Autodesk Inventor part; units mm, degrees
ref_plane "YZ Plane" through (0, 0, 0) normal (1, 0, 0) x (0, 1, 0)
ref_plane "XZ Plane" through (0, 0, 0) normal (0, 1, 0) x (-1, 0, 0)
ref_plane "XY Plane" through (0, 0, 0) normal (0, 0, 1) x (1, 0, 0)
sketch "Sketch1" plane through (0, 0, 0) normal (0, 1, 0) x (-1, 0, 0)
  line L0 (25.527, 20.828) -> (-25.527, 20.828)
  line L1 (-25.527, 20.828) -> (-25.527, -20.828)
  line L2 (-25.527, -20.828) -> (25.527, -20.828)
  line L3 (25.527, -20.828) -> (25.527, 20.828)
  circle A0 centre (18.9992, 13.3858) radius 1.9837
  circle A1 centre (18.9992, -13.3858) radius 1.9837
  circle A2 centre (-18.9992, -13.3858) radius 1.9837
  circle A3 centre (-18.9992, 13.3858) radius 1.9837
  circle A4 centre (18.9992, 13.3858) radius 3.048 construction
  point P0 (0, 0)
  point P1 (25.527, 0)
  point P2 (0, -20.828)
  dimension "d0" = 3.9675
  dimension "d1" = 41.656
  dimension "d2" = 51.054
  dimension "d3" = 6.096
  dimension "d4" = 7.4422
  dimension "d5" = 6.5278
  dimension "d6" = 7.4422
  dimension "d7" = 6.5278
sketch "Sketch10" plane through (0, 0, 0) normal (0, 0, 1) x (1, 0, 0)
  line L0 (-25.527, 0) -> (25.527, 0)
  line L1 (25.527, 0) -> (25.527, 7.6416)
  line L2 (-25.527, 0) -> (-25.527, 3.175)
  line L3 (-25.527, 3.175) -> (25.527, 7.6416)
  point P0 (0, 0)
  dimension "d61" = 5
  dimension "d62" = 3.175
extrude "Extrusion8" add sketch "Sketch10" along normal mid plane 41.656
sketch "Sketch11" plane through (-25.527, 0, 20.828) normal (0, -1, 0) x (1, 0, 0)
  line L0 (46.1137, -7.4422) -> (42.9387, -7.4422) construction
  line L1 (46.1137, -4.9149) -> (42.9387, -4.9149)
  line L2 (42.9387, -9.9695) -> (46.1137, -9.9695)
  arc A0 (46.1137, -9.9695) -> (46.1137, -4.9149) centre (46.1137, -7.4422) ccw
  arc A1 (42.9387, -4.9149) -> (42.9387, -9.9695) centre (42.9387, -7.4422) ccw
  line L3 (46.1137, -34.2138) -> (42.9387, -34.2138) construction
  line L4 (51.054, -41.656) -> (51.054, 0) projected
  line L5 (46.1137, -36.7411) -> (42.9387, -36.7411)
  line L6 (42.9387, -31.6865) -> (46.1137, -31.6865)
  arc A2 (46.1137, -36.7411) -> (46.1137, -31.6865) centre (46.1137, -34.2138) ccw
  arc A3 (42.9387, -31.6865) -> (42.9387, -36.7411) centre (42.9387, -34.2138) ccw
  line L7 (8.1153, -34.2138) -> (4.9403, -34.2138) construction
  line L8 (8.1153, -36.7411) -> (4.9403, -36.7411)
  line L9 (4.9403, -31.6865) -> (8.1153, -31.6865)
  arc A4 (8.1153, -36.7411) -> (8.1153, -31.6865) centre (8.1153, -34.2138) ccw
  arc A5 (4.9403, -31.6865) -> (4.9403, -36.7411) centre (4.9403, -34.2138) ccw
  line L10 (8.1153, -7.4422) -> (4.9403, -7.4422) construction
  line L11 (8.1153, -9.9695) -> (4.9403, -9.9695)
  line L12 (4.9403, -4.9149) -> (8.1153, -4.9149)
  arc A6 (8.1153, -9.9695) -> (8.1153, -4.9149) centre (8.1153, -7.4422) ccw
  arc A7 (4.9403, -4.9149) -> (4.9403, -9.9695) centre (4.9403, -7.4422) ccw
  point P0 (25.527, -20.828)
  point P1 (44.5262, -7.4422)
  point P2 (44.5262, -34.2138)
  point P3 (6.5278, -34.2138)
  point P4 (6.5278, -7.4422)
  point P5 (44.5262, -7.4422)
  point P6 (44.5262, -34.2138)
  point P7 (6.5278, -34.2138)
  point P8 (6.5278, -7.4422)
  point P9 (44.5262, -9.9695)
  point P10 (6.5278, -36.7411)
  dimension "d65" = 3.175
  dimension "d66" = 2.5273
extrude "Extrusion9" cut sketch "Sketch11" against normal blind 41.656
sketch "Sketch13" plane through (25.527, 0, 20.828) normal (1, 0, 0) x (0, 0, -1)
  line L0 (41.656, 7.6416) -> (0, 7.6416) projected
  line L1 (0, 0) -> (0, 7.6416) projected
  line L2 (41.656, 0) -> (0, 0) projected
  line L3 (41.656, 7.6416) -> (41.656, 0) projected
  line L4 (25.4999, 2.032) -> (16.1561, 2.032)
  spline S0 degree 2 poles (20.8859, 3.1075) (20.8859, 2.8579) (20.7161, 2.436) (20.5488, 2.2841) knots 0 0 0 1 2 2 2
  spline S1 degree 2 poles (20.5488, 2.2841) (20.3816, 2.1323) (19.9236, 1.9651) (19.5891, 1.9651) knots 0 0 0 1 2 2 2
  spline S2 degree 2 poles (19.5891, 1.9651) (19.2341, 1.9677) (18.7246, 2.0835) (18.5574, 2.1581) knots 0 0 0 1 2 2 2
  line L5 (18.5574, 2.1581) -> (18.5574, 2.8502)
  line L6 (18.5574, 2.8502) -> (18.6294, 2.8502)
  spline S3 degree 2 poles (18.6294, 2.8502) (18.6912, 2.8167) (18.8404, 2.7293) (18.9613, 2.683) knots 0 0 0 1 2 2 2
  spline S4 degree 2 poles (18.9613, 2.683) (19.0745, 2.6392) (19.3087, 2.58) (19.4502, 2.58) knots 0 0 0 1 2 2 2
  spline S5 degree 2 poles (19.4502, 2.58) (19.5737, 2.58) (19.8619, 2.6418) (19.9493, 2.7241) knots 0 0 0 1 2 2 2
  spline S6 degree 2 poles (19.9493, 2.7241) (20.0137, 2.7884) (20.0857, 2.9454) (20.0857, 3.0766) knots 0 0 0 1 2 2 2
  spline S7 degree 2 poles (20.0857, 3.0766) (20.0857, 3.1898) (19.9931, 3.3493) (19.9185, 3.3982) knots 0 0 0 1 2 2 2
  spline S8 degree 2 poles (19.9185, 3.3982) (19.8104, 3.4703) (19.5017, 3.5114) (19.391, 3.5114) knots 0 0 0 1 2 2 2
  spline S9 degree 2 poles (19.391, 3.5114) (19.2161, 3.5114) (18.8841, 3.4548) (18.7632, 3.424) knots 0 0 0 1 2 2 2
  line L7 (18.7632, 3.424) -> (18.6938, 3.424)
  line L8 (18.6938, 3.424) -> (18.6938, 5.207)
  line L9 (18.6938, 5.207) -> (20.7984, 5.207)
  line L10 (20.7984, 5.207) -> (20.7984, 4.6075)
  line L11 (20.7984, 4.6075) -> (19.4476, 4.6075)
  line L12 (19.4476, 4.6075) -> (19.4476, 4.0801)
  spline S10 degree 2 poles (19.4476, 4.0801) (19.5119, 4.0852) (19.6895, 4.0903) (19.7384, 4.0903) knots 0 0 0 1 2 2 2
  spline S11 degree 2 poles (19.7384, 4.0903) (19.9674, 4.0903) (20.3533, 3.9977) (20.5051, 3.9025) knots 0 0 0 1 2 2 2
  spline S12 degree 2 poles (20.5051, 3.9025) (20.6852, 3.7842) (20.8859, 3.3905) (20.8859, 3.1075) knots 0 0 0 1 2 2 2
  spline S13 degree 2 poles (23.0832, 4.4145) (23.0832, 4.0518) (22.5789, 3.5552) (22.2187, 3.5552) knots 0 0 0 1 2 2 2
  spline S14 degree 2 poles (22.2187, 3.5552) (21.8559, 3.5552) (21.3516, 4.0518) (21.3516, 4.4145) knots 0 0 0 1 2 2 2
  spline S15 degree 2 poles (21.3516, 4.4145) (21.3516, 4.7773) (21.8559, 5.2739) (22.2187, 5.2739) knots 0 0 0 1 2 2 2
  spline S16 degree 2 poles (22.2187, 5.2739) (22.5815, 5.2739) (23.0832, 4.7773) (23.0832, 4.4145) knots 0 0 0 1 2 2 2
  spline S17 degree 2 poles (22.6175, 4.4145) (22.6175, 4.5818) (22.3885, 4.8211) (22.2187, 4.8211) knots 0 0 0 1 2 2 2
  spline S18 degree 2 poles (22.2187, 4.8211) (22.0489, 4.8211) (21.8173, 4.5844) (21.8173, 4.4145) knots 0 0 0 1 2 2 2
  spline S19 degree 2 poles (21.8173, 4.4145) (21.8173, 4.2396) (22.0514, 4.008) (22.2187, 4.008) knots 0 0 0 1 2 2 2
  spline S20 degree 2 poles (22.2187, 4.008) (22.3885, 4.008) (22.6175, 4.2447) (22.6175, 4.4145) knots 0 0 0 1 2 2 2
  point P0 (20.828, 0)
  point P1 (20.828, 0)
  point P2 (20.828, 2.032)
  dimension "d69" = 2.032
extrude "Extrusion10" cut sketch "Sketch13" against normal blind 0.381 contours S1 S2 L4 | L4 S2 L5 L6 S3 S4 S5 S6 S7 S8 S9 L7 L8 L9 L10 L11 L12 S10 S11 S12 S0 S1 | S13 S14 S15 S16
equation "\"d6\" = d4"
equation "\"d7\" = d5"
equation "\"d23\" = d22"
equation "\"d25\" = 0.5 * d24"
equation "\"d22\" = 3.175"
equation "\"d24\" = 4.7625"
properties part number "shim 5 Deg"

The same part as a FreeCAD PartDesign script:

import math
import FreeCAD as App
import Part
import Sketcher
from FreeCAD import Vector
Q = App.Units.Quantity

doc = App.newDocument("Part")
params = doc.addObject("Spreadsheet::Sheet", "Params")
for row, (alias, value) in enumerate([
    ("sketch1_height", "0.125 in"),
    ("sketch1_width", "2.01 in"),
    ("pad1_length", "1.64 in"),
    ("sketch2_width", "0.125 in"),
    ("pocket1_length", "1.64 in"),
    ("pocket2_length", "0.015 in"),
], start=1):
    params.set(f"A{row}", alias)
    params.set(f"B{row}", "=" + value)
    params.setAlias(f"B{row}", alias)

body = doc.addObject("PartDesign::Body", "Body")

# Sketch on XY plane
sketch1 = body.newObject("Sketcher::SketchObject", "Sketch")
sketch1.AttachmentSupport = (doc.getObject("XY_Plane"), [""])
sketch1.MapMode = "FlatFace"
sketch1.addGeometry([
    Part.LineSegment(Vector(-25.527, 3.175, 0), Vector(-25.527, 0, 0)),
    Part.LineSegment(Vector(-25.527, 0, 0), Vector(25.527, 0, 0)),
    Part.LineSegment(Vector(25.527, 0, 0), Vector(25.527, 7.6416, 0)),
    Part.LineSegment(Vector(25.527, 7.6416, 0), Vector(-25.527, 3.175, 0)),
], False)
sketch1.addConstraint([
    Sketcher.Constraint("Coincident", 0, 2, 1, 1),
    Sketcher.Constraint("Coincident", 1, 2, 2, 1),
    Sketcher.Constraint("Coincident", 2, 2, 3, 1),
    Sketcher.Constraint("Coincident", 3, 2, 0, 1),
    Sketcher.Constraint("Vertical", 0),
    Sketcher.Constraint("Horizontal", 1),
    Sketcher.Constraint("Vertical", 2),
    Sketcher.Constraint("Symmetric", 0, 2, 1, 2, -1, 1),
    Sketcher.Constraint("DistanceY", 0, 2, 0, 1, Q("0.125 in")),
    Sketcher.Constraint("Angle", 3, Q("-175 deg")),
    Sketcher.Constraint("DistanceX", 1, 1, 1, 2, Q("2.01 in")),
])
sketch1.setExpression("Constraints[8]", "Params.sketch1_height")
sketch1.setExpression("Constraints[10]", "Params.sketch1_width")
pad1 = body.newObject("PartDesign::Pad", "Pad")
pad1.Profile = sketch1
pad1.setExpression("Length", "Params.pad1_length")
pad1.Midplane = True

# Sketch on XZ plane
sketch2 = body.newObject("Sketcher::SketchObject", "Sketch001")
sketch2.AttachmentSupport = (doc.getObject("XZ_Plane"), [""])
sketch2.MapMode = "FlatFace"
sketch2.addGeometry([
    Part.ArcOfCircle(Part.Circle(Vector(20.5867, 13.3858, 0), Vector(0, 0, 1), 2.5273), math.radians(-90), math.radians(90)),  # 0
    Part.LineSegment(Vector(20.5867, 15.9131, 0), Vector(17.4117, 15.9131, 0)),  # 1
    Part.ArcOfCircle(Part.Circle(Vector(17.4117, 13.3858, 0), Vector(0, 0, 1), 2.5273), math.radians(90), math.radians(270)),  # 2
    Part.LineSegment(Vector(17.4117, 10.8585, 0), Vector(20.5867, 10.8585, 0)),  # 3
    Part.LineSegment(Vector(17.4117, -15.9131, 0), Vector(20.5867, -15.9131, 0)),  # 4
    Part.ArcOfCircle(Part.Circle(Vector(20.5867, -13.3858, 0), Vector(0, 0, 1), 2.5273), math.radians(-90), math.radians(90)),  # 5
    Part.LineSegment(Vector(20.5867, -10.8585, 0), Vector(17.4117, -10.8585, 0)),  # 6
    Part.ArcOfCircle(Part.Circle(Vector(17.4117, -13.3858, 0), Vector(0, 0, 1), 2.5273), math.radians(90), math.radians(270)),  # 7
    Part.LineSegment(Vector(-20.5867, -15.9131, 0), Vector(-17.4117, -15.9131, 0)),  # 8
    Part.ArcOfCircle(Part.Circle(Vector(-17.4117, -13.3858, 0), Vector(0, 0, 1), 2.5273), math.radians(-90), math.radians(90)),  # 9
    Part.LineSegment(Vector(-17.4117, -10.8585, 0), Vector(-20.5867, -10.8585, 0)),  # 10
    Part.ArcOfCircle(Part.Circle(Vector(-20.5867, -13.3858, 0), Vector(0, 0, 1), 2.5273), math.radians(90), math.radians(270)),  # 11
    Part.LineSegment(Vector(-20.5867, 10.8585, 0), Vector(-17.4117, 10.8585, 0)),  # 12
    Part.ArcOfCircle(Part.Circle(Vector(-17.4117, 13.3858, 0), Vector(0, 0, 1), 2.5273), math.radians(-90), math.radians(90)),  # 13
    Part.LineSegment(Vector(-17.4117, 15.9131, 0), Vector(-20.5867, 15.9131, 0)),  # 14
    Part.ArcOfCircle(Part.Circle(Vector(-20.5867, 13.3858, 0), Vector(0, 0, 1), 2.5273), math.radians(90), math.radians(270)),  # 15
], False)
sketch2.addConstraint([
    Sketcher.Constraint("Tangent", 0, 2, 1, 1),
    Sketcher.Constraint("Tangent", 1, 2, 2, 1),
    Sketcher.Constraint("Tangent", 2, 2, 3, 1),
    Sketcher.Constraint("Tangent", 3, 2, 0, 1),
    Sketcher.Constraint("Tangent", 4, 2, 5, 1),
    Sketcher.Constraint("Tangent", 5, 2, 6, 1),
    Sketcher.Constraint("Tangent", 6, 2, 7, 1),
    Sketcher.Constraint("Tangent", 7, 2, 4, 1),
    Sketcher.Constraint("Tangent", 8, 2, 9, 1),
    Sketcher.Constraint("Tangent", 9, 2, 10, 1),
    Sketcher.Constraint("Tangent", 10, 2, 11, 1),
    Sketcher.Constraint("Tangent", 11, 2, 8, 1),
    Sketcher.Constraint("Tangent", 12, 2, 13, 1),
    Sketcher.Constraint("Tangent", 13, 2, 14, 1),
    Sketcher.Constraint("Tangent", 14, 2, 15, 1),
    Sketcher.Constraint("Tangent", 15, 2, 12, 1),
    Sketcher.Constraint("Horizontal", 1),
    Sketcher.Constraint("Horizontal", 3),
    Sketcher.Constraint("Horizontal", 4),
    Sketcher.Constraint("Horizontal", 6),
    Sketcher.Constraint("Horizontal", 8),
    Sketcher.Constraint("Horizontal", 10),
    Sketcher.Constraint("Horizontal", 12),
    Sketcher.Constraint("Horizontal", 14),
    Sketcher.Constraint("Equal", 2, 5),
    Sketcher.Constraint("Equal", 7, 9),
    Sketcher.Constraint("Equal", 11, 13),
    Sketcher.Constraint("Symmetric", 2, 3, 9, 3, -1, 1),
    Sketcher.Constraint("Symmetric", 7, 3, 13, 3, -1, 1),
    Sketcher.Constraint("Symmetric", 7, 3, 9, 3, -2),
    Sketcher.Constraint("Vertical", 0, 3, 5, 3),
    Sketcher.Constraint("Vertical", 11, 3, 15, 3),
    Sketcher.Constraint("Equal", 6, 8),
    Sketcher.Constraint("Radius", 0, Q("0.0995 in")),
    Sketcher.Constraint("DistanceX", 1, 2, 1, 1, Q("0.125 in")),
    Sketcher.Constraint("DistanceY", -1, 1, 0, 3, Q("0.527 in")),
    Sketcher.Constraint("DistanceX", 9, 3, 7, 3, Q("1.371 in")),
])
sketch2.setExpression("Constraints[34]", "Params.sketch2_width")
pocket1 = body.newObject("PartDesign::Pocket", "Pocket")
pocket1.Profile = sketch2
pocket1.setExpression("Length", "Params.pocket1_length")

# Sketch on YZ plane
sketch3 = body.newObject("Sketcher::SketchObject", "Sketch002")
sketch3.AttachmentSupport = (doc.getObject("YZ_Plane"), [""])
sketch3.MapMode = "FlatFace"
sketch3.AttachmentOffset = App.Placement(Vector(0, 0, 1.005 * 25.4), App.Rotation())
sketch3.addGeometry([
    Part.BSplineCurve([Vector(2.032, 0.724864, 0), Vector(1.9651, 0.939669, 0), Vector(1.9651, 1.2389, 0)], [3, 3], [1.105439083, 2], False, 2, [1, 1, 1], False),  # 0
    Part.BSplineCurve([Vector(2.2841, 0.2792, 0), Vector(2.1323, 0.4464, 0), Vector(2.039885, 0.699546, 0), Vector(2.032, 0.724864, 0)], [3, 1, 3], [0, 1, 1.105439083], False, 2, [1, 1, 1, 1], False),  # 1
    Part.BSplineCurve([Vector(3.1075, -0.0579, 0), Vector(2.8579, -0.0579, 0), Vector(2.436, 0.1119, 0), Vector(2.2841, 0.2792, 0)], [3, 1, 3], [0, 1, 2], False, 2, [1, 1, 1, 1], False),  # 2
    Part.BSplineCurve([Vector(3.9025, 0.3229, 0), Vector(3.7842, 0.1428, 0), Vector(3.3905, -0.0579, 0), Vector(3.1075, -0.0579, 0)], [3, 1, 3], [0, 1, 2], False, 2, [1, 1, 1, 1], False),  # 3
    Part.BSplineCurve([Vector(4.0903, 1.0896, 0), Vector(4.0903, 0.8606, 0), Vector(3.9977, 0.4747, 0), Vector(3.9025, 0.3229, 0)], [3, 1, 3], [0, 1, 2], False, 2, [1, 1, 1, 1], False),  # 4
    Part.BSplineCurve([Vector(4.0801, 1.3804, 0), Vector(4.0852, 1.3161, 0), Vector(4.0903, 1.1385, 0), Vector(4.0903, 1.0896, 0)], [3, 1, 3], [0, 1, 2], False, 2, [1, 1, 1, 1], False),  # 5
    Part.LineSegment(Vector(4.0801, 1.3804, 0), Vector(4.6075, 1.3804, 0)),  # 6
    Part.LineSegment(Vector(4.6075, 1.3804, 0), Vector(4.6075, 0.0296, 0)),  # 7
    Part.LineSegment(Vector(4.6075, 0.0296, 0), Vector(5.207, 0.0296, 0)),  # 8
    Part.LineSegment(Vector(5.207, 0.0296, 0), Vector(5.207, 2.1342, 0)),  # 9
    Part.LineSegment(Vector(5.207, 2.1342, 0), Vector(3.424, 2.1342, 0)),  # 10
    Part.LineSegment(Vector(3.424, 2.1342, 0), Vector(3.424, 2.0648, 0)),  # 11
    Part.BSplineCurve([Vector(3.5114, 1.437, 0), Vector(3.5114, 1.6119, 0), Vector(3.4548, 1.9439, 0), Vector(3.424, 2.0648, 0)], [3, 1, 3], [0, 1, 2], False, 2, [1, 1, 1, 1], False),  # 12
    Part.BSplineCurve([Vector(3.3982, 0.9095, 0), Vector(3.4703, 1.0176, 0), Vector(3.5114, 1.3263, 0), Vector(3.5114, 1.437, 0)], [3, 1, 3], [0, 1, 2], False, 2, [1, 1, 1, 1], False),  # 13
    Part.BSplineCurve([Vector(3.0766, 0.7423, 0), Vector(3.1898, 0.7423, 0), Vector(3.3493, 0.8349, 0), Vector(3.3982, 0.9095, 0)], [3, 1, 3], [0, 1, 2], False, 2, [1, 1, 1, 1], False),  # 14
    Part.BSplineCurve([Vector(2.7241, 0.8787, 0), Vector(2.7884, 0.8143, 0), Vector(2.9454, 0.7423, 0), Vector(3.0766, 0.7423, 0)], [3, 1, 3], [0, 1, 2], False, 2, [1, 1, 1, 1], False),  # 15
    Part.BSplineCurve([Vector(2.58, 1.3778, 0), Vector(2.58, 1.2543, 0), Vector(2.6418, 0.9661, 0), Vector(2.7241, 0.8787, 0)], [3, 1, 3], [0, 1, 2], False, 2, [1, 1, 1, 1], False),  # 16
    Part.BSplineCurve([Vector(2.683, 1.8667, 0), Vector(2.6392, 1.7535, 0), Vector(2.58, 1.5193, 0), Vector(2.58, 1.3778, 0)], [3, 1, 3], [0, 1, 2], False, 2, [1, 1, 1, 1], False),  # 17
    Part.BSplineCurve([Vector(2.8502, 2.1986, 0), Vector(2.8167, 2.1368, 0), Vector(2.7293, 1.9876, 0), Vector(2.683, 1.8667, 0)], [3, 1, 3], [0, 1, 2], False, 2, [1, 1, 1, 1], False),  # 18
    Part.LineSegment(Vector(2.8502, 2.1986, 0), Vector(2.8502, 2.2706, 0)),  # 19
    Part.LineSegment(Vector(2.8502, 2.2706, 0), Vector(2.1581, 2.2706, 0)),  # 20
    Part.BSplineCurve([Vector(2.032, 1.876325, 0), Vector(2.087591, 2.112568, 0), Vector(2.1581, 2.2706, 0)], [3, 3], [1.054834083, 2], False, 2, [1, 1, 1], False),  # 21
    Part.BSplineCurve([Vector(1.9651, 1.2389, 0), Vector(1.9677, 1.5939, 0), Vector(2.028775, 1.862619, 0), Vector(2.032, 1.876325, 0)], [3, 1, 3], [0, 1, 1.054834083], False, 2, [1, 1, 1, 1], False),  # 22
    Part.BSplineCurve([Vector(4.4145, -2.2552, 0), Vector(4.0518, -2.2552, 0), Vector(3.5552, -1.7509, 0), Vector(3.5552, -1.3907, 0)], [3, 1, 3], [0, 1, 2], False, 2, [1, 1, 1, 1], False),  # 23
    Part.BSplineCurve([Vector(5.2739, -1.3907, 0), Vector(5.2739, -1.7535, 0), Vector(4.7773, -2.2552, 0), Vector(4.4145, -2.2552, 0)], [3, 1, 3], [0, 1, 2], False, 2, [1, 1, 1, 1], False),  # 24
    Part.BSplineCurve([Vector(4.4145, -0.5236, 0), Vector(4.7773, -0.5236, 0), Vector(5.2739, -1.0279, 0), Vector(5.2739, -1.3907, 0)], [3, 1, 3], [0, 1, 2], False, 2, [1, 1, 1, 1], False),  # 25
    Part.BSplineCurve([Vector(3.5552, -1.3907, 0), Vector(3.5552, -1.0279, 0), Vector(4.0518, -0.5236, 0), Vector(4.4145, -0.5236, 0)], [3, 1, 3], [0, 1, 2], False, 2, [1, 1, 1, 1], False),  # 26
    Part.BSplineCurve([Vector(4.4145, -1.7895, 0), Vector(4.5818, -1.7895, 0), Vector(4.8211, -1.5605, 0), Vector(4.8211, -1.3907, 0)], [3, 1, 3], [0, 1, 2], False, 2, [1, 1, 1, 1], False),  # 27
    Part.BSplineCurve([Vector(4.008, -1.3907, 0), Vector(4.008, -1.5605, 0), Vector(4.2447, -1.7895, 0), Vector(4.4145, -1.7895, 0)], [3, 1, 3], [0, 1, 2], False, 2, [1, 1, 1, 1], False),  # 28
    Part.BSplineCurve([Vector(4.4145, -0.9893, 0), Vector(4.2396, -0.9893, 0), Vector(4.008, -1.2234, 0), Vector(4.008, -1.3907, 0)], [3, 1, 3], [0, 1, 2], False, 2, [1, 1, 1, 1], False),  # 29
    Part.BSplineCurve([Vector(4.8211, -1.3907, 0), Vector(4.8211, -1.2209, 0), Vector(4.5844, -0.9893, 0), Vector(4.4145, -0.9893, 0)], [3, 1, 3], [0, 1, 2], False, 2, [1, 1, 1, 1], False),  # 30
], False)
sketch3.addConstraint([
    Sketcher.Constraint("Block", 0),
    Sketcher.Constraint("Block", 1),
    Sketcher.Constraint("Block", 2),
    Sketcher.Constraint("Block", 3),
    Sketcher.Constraint("Block", 4),
    Sketcher.Constraint("Block", 5),
    Sketcher.Constraint("Block", 12),
    Sketcher.Constraint("Block", 13),
    Sketcher.Constraint("Block", 14),
    Sketcher.Constraint("Block", 15),
    Sketcher.Constraint("Block", 16),
    Sketcher.Constraint("Block", 17),
    Sketcher.Constraint("Block", 18),
    Sketcher.Constraint("Block", 21),
    Sketcher.Constraint("Block", 22),
    Sketcher.Constraint("Block", 23),
    Sketcher.Constraint("Block", 24),
    Sketcher.Constraint("Block", 25),
    Sketcher.Constraint("Block", 26),
    Sketcher.Constraint("Block", 27),
    Sketcher.Constraint("Block", 28),
    Sketcher.Constraint("Block", 29),
    Sketcher.Constraint("Block", 30),
    Sketcher.Constraint("Coincident", 5, 1, 6, 1),
    Sketcher.Constraint("Coincident", 6, 2, 7, 1),
    Sketcher.Constraint("Coincident", 7, 2, 8, 1),
    Sketcher.Constraint("Coincident", 8, 2, 9, 1),
    Sketcher.Constraint("Coincident", 9, 2, 10, 1),
    Sketcher.Constraint("Coincident", 10, 2, 11, 1),
    Sketcher.Constraint("Coincident", 11, 2, 12, 2),
    Sketcher.Constraint("Coincident", 18, 1, 19, 1),
    Sketcher.Constraint("Coincident", 19, 2, 20, 1),
    Sketcher.Constraint("Coincident", 20, 2, 21, 2),
    Sketcher.Constraint("Horizontal", 6),
    Sketcher.Constraint("Vertical", 7),
    Sketcher.Constraint("Horizontal", 8),
    Sketcher.Constraint("Vertical", 9),
    Sketcher.Constraint("Horizontal", 10),
    Sketcher.Constraint("Vertical", 11),
    Sketcher.Constraint("Vertical", 19),
    Sketcher.Constraint("Horizontal", 20),
    Sketcher.Constraint("DistanceX", 8, 1, 8, 2, Q("0.0236 in")),
    Sketcher.Constraint("DistanceX", 10, 2, 10, 1, Q("0.0702 in")),
    Sketcher.Constraint("DistanceY", 7, 2, 7, 1, Q("1.3508 mm")),
    Sketcher.Constraint("DistanceY", 9, 1, 9, 2, Q("2.1046 mm")),
])
pocket2 = body.newObject("PartDesign::Pocket", "Pocket001")
pocket2.Profile = sketch3
pocket2.setExpression("Length", "Params.pocket2_length")

doc.recompute()
